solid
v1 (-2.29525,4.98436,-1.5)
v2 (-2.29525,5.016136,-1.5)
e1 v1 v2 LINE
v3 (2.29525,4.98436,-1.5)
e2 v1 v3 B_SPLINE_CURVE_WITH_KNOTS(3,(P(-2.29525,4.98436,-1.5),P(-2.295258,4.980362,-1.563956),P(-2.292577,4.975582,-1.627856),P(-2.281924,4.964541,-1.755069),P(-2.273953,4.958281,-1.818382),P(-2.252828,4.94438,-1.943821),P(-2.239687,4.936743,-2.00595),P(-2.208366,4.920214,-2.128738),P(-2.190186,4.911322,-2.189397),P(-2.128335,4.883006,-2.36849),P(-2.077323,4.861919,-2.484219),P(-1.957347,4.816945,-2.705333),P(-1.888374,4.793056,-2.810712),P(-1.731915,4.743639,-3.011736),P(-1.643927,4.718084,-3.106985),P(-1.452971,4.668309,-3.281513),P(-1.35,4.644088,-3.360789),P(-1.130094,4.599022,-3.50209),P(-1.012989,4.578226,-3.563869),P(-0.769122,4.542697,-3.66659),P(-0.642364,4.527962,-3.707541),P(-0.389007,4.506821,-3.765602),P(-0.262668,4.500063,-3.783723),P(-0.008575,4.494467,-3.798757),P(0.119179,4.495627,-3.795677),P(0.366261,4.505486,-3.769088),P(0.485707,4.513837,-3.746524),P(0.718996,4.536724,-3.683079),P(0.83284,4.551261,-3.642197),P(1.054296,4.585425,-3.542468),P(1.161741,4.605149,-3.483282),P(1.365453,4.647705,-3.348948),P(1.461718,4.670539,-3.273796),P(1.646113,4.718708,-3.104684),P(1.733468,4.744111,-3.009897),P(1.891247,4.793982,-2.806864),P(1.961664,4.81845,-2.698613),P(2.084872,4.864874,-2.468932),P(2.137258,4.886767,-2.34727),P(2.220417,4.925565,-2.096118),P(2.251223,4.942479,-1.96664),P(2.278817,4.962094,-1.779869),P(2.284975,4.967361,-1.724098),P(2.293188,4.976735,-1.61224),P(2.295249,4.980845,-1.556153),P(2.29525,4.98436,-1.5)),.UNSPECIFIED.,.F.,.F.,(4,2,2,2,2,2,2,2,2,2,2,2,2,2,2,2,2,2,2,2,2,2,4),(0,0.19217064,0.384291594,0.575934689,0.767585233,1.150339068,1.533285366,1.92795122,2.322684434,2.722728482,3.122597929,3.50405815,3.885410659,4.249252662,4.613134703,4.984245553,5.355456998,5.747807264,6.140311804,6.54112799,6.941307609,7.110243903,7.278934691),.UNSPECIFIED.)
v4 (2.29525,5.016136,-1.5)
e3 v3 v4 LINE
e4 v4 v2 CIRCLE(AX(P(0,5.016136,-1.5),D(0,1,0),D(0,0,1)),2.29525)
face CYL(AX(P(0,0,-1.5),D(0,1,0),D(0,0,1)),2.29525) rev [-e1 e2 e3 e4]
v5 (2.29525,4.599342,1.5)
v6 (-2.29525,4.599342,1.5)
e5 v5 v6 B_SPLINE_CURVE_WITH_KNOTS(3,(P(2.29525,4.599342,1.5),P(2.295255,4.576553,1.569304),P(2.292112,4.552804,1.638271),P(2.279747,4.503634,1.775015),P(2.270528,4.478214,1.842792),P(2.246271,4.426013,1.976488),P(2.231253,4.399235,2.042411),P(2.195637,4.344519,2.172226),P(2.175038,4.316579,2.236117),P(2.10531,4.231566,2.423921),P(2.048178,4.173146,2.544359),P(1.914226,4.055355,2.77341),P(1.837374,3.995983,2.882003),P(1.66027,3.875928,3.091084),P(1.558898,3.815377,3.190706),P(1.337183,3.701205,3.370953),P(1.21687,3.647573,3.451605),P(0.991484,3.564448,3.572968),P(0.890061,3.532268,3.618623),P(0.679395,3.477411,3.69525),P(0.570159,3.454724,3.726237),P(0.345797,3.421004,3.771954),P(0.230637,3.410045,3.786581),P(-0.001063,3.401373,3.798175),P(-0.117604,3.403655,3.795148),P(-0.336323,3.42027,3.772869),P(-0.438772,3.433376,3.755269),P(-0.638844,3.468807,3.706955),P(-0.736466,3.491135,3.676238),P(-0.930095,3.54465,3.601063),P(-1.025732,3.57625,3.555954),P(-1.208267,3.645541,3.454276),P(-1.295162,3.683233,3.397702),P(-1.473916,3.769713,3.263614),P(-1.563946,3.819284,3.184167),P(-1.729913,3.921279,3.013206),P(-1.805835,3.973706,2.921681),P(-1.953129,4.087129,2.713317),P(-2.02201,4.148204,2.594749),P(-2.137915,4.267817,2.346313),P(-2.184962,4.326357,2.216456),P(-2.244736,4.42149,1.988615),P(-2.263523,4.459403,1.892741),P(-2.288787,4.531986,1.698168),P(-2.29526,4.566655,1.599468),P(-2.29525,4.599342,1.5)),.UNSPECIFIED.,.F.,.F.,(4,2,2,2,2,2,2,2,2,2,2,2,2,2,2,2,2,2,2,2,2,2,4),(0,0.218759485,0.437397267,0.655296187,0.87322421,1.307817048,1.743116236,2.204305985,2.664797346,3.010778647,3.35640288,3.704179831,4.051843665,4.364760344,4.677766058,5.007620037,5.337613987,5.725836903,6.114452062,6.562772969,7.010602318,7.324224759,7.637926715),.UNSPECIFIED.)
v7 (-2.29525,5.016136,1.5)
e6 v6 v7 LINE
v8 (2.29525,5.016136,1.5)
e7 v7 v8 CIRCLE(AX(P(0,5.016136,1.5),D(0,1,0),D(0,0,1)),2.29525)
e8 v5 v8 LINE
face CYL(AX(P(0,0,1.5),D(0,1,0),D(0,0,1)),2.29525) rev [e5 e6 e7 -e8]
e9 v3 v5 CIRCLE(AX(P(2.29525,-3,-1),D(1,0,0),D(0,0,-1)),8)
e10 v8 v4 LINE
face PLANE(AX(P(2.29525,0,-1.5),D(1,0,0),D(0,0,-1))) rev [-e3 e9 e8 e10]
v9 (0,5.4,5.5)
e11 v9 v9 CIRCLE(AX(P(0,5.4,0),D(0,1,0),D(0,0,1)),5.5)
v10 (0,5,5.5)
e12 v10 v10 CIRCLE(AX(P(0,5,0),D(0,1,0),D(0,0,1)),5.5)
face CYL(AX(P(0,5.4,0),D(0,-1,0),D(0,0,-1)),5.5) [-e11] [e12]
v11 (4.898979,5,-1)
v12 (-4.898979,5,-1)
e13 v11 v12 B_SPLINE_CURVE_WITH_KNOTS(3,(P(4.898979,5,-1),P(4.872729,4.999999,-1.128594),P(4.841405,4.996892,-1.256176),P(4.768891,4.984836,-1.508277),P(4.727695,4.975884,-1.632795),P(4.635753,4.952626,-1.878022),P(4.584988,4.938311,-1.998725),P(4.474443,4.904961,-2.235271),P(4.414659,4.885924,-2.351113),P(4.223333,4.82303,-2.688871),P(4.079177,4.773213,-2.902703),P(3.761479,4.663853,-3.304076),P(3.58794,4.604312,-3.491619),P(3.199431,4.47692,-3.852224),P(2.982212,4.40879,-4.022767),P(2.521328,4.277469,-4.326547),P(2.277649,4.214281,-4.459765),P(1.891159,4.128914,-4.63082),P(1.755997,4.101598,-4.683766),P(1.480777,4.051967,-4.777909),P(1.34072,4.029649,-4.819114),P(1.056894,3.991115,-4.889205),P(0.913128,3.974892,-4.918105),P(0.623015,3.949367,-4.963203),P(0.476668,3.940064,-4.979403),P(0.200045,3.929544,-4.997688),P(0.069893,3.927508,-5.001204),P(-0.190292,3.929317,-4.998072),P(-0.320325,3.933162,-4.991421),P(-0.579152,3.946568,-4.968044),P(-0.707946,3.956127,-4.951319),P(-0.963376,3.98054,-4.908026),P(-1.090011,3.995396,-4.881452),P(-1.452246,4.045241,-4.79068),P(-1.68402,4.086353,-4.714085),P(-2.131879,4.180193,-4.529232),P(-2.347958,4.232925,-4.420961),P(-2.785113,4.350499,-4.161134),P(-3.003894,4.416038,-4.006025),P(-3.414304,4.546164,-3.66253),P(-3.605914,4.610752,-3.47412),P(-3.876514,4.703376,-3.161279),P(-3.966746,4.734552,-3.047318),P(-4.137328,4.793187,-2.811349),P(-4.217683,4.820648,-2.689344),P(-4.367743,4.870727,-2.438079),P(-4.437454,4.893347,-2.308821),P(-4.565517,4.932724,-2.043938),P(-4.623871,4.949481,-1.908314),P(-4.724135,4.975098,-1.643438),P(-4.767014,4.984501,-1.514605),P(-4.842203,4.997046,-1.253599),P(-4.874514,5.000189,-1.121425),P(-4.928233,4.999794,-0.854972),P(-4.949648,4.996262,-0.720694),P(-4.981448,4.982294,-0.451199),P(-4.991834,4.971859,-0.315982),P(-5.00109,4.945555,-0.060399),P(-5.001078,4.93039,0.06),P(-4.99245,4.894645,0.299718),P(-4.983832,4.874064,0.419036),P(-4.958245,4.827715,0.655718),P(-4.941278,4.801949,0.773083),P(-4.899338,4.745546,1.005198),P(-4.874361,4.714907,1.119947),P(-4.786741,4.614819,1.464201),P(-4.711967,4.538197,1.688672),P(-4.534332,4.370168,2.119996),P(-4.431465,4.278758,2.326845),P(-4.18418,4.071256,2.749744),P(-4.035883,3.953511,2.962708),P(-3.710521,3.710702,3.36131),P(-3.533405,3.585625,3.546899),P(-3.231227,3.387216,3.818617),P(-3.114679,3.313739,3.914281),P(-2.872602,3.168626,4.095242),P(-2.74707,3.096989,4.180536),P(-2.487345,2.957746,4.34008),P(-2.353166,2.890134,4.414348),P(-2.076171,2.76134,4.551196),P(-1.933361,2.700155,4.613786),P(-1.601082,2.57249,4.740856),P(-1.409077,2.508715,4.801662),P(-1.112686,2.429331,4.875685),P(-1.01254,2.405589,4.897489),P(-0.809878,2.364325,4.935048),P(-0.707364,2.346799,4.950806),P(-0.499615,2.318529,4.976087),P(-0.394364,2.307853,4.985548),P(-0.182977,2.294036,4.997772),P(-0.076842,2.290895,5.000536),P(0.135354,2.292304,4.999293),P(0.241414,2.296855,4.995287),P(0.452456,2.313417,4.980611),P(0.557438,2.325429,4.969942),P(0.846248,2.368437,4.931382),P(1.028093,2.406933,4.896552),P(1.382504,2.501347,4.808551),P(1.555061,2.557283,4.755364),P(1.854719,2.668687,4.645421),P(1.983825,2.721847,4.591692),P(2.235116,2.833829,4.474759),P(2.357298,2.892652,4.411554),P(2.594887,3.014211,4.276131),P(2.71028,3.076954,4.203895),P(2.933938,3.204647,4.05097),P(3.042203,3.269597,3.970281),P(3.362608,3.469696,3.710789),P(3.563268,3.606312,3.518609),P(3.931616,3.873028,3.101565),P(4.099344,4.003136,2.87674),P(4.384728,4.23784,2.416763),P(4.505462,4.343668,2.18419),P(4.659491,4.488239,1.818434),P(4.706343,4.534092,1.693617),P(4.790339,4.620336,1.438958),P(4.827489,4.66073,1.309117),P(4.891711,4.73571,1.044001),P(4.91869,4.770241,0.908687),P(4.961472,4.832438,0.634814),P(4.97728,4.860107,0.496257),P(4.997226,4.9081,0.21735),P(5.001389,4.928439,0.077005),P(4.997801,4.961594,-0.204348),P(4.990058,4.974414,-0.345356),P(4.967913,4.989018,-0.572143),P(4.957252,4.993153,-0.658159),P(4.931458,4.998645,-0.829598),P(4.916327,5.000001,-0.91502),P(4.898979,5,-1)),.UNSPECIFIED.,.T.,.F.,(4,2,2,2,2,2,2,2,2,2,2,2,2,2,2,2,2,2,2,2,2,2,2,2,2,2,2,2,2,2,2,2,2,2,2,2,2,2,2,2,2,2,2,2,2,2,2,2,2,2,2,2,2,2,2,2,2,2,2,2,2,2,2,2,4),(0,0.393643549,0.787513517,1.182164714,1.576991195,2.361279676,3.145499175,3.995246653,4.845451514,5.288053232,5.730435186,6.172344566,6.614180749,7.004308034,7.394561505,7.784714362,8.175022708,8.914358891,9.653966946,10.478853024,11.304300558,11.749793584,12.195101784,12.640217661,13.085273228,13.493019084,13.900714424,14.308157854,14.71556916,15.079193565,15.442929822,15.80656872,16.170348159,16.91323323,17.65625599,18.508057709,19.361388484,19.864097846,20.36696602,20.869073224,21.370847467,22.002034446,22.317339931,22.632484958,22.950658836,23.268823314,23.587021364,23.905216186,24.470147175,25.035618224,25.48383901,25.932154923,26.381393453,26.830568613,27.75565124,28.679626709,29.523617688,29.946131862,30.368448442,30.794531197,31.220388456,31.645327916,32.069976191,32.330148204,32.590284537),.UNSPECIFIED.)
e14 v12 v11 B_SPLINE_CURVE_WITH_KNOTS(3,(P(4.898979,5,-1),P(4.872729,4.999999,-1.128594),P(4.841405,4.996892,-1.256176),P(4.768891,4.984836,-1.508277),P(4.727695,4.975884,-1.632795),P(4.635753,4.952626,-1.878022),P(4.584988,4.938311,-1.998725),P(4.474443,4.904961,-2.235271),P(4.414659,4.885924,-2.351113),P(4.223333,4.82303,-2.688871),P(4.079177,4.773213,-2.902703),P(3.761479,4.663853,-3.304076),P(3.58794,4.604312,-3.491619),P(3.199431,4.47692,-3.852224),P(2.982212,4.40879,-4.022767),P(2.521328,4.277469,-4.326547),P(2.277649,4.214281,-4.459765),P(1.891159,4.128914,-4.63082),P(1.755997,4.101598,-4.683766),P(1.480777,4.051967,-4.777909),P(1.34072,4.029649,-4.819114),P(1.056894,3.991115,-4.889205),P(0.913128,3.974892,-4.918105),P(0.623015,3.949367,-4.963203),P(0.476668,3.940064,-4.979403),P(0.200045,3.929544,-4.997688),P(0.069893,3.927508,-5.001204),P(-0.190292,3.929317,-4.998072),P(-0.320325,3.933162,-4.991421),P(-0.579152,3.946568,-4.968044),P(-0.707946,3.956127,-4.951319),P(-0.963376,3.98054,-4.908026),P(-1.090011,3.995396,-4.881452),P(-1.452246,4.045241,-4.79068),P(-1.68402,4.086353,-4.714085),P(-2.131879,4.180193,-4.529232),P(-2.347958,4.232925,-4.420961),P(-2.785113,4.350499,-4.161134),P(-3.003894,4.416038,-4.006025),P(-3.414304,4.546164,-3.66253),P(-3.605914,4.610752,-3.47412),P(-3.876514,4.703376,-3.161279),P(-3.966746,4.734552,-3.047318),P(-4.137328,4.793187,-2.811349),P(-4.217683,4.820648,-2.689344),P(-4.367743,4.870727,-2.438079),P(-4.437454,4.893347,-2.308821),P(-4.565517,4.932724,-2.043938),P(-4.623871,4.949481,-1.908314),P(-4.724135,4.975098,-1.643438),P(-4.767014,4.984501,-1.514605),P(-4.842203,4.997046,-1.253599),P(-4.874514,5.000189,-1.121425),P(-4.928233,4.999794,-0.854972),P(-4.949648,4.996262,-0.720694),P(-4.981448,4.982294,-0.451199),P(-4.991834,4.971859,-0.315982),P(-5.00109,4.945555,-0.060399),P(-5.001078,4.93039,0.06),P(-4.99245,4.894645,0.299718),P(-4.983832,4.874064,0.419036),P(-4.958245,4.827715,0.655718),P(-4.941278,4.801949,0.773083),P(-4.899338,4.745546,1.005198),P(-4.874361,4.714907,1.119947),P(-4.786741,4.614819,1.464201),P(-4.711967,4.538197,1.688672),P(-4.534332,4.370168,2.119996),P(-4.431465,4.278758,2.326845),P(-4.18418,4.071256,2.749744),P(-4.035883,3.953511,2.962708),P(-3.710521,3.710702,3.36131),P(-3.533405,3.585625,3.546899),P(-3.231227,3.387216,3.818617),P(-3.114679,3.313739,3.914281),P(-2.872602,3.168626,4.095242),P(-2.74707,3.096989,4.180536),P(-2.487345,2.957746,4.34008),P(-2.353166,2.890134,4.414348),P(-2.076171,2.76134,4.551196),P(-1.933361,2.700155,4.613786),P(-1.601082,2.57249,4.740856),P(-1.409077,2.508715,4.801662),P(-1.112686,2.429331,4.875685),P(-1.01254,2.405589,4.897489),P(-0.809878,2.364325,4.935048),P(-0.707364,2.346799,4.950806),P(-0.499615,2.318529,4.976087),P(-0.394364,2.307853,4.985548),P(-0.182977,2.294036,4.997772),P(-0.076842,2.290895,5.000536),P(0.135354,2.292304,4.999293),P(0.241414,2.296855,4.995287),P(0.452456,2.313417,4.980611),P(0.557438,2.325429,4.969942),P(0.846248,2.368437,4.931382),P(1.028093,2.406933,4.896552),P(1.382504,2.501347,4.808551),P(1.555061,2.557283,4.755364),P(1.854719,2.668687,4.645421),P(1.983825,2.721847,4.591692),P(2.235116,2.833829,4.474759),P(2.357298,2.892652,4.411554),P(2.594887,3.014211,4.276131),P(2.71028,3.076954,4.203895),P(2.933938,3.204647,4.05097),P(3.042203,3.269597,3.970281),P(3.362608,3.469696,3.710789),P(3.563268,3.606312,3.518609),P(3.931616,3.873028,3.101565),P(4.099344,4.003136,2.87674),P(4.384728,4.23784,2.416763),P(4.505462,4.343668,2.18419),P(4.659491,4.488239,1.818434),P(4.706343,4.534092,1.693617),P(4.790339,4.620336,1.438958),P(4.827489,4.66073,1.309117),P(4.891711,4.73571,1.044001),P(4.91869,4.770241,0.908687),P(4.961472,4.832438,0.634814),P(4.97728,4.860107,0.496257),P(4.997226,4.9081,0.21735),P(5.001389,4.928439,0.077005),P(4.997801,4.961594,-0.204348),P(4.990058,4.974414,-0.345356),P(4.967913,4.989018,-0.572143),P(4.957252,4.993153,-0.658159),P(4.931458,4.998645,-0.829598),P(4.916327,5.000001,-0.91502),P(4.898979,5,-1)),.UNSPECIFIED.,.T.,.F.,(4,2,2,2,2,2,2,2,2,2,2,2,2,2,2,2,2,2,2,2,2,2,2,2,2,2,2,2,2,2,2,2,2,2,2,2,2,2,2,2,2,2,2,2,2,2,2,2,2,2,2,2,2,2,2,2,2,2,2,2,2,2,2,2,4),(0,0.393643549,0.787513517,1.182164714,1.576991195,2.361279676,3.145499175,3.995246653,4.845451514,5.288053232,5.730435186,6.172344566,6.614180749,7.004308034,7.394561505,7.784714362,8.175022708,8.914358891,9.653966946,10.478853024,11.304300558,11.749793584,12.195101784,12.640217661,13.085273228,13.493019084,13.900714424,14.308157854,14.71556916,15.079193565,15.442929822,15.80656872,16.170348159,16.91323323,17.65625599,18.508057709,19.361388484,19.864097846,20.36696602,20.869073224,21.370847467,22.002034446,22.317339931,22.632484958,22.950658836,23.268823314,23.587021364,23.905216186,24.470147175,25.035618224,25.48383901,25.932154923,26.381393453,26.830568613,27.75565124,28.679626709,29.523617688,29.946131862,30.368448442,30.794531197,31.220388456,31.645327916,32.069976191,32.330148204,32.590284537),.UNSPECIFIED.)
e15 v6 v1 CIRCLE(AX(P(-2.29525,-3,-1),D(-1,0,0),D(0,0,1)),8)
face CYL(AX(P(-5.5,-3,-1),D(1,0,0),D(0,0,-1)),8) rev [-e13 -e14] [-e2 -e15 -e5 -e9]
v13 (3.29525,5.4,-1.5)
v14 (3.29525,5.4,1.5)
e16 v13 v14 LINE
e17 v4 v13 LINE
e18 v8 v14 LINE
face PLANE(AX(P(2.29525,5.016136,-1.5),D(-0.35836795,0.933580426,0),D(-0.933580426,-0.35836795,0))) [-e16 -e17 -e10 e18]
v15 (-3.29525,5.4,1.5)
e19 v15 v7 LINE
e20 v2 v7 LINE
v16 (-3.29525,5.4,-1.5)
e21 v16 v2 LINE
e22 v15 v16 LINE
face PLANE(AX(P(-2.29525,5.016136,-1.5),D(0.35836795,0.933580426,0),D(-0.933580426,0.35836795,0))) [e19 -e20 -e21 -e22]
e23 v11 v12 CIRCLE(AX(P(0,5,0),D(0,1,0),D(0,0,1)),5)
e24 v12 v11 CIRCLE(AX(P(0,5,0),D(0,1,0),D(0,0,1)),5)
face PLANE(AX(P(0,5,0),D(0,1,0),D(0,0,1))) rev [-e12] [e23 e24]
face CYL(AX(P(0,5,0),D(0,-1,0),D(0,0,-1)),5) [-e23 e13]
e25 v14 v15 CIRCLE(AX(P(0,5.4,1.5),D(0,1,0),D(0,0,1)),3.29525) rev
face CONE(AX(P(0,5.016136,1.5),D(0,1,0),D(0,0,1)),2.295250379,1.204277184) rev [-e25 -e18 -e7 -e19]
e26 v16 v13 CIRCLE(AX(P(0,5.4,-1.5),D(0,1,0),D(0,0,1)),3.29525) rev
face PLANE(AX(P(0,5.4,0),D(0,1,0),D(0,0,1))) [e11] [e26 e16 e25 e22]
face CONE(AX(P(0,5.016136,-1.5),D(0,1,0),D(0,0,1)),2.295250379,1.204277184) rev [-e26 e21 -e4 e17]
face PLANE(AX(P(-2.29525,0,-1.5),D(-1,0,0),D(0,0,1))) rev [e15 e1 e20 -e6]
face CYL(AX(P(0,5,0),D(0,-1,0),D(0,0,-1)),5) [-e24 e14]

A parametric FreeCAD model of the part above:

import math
import FreeCAD as App
import Part
import Sketcher
from FreeCAD import Vector


def edges_at(feature, points):
    """Names of the edges that pass closest to the given points."""
    edges = feature.Shape.Edges
    near = lambda p: min(range(len(edges)), key=lambda i: edges[i].distToShape(Part.Vertex(*p))[0])
    return sorted({f"Edge{near(p) + 1}" for p in points})

doc = App.newDocument("Part")
params = doc.addObject("Spreadsheet::Sheet", "Params")
for row, (alias, value) in enumerate([
    ("sketch1_diameter", "10 mm"),
    ("pad1_length", "5 mm"),
    ("sketch2_diameter", "11 mm"),
    ("pad2_length", "0.4 mm"),
    ("sketch3_height", "3 mm"),
    ("sketch4_diameter", "16 mm"),
    ("chamfer_size", "1 mm"),
    ("chamfer_size2", "0.383864 mm"),
], start=1):
    params.set(f"A{row}", alias)
    params.set(f"B{row}", "=" + value)
    params.setAlias(f"B{row}", alias)

body = doc.addObject("PartDesign::Body", "Body")

sketch1 = doc.addObject("Sketcher::SketchObject", "Sketch")
body.addObject(sketch1)
sketch1.AttachmentSupport = (doc.XZ_Plane, [""])
sketch1.MapMode = "FlatFace"
sketch1.addGeometry(Part.Circle(Vector(0, 0, 0), Vector(0, 0, 1), 5), False)
sketch1.addConstraint([
    Sketcher.Constraint("Coincident", 0, 3, -1, 1),
    Sketcher.Constraint("Diameter", 0, 10.0),
])
sketch1.setExpression("Constraints[1]", "Params.sketch1_diameter")
pad1 = doc.addObject("PartDesign::Pad", "Pad")
body.addObject(pad1)
pad1.Profile = sketch1
pad1.setExpression("Length", "Params.pad1_length")
pad1.Reversed = True

sketch2 = doc.addObject("Sketcher::SketchObject", "Sketch001")
body.addObject(sketch2)
sketch2.AttachmentSupport = (doc.XZ_Plane, [""])
sketch2.MapMode = "FlatFace"
sketch2.AttachmentOffset = App.Placement(Vector(0, 0, -5), App.Rotation())
sketch2.addGeometry(Part.Circle(Vector(0, 0, 0), Vector(0, 0, 1), 5.5), False)
sketch2.addConstraint([
    Sketcher.Constraint("Coincident", 0, 3, -1, 1),
    Sketcher.Constraint("Diameter", 0, 11.0),
])
sketch2.setExpression("Constraints[1]", "Params.sketch2_diameter")
pad2 = doc.addObject("PartDesign::Pad", "Pad001")
body.addObject(pad2)
pad2.Profile = sketch2
pad2.setExpression("Length", "Params.pad2_length")
pad2.Reversed = True

sketch3 = doc.addObject("Sketcher::SketchObject", "Sketch002")
body.addObject(sketch3)
sketch3.AttachmentSupport = (doc.XZ_Plane, [""])
sketch3.MapMode = "FlatFace"
sketch3.AttachmentOffset = App.Placement(Vector(0, 0, -5.4), App.Rotation())
sketch3.addGeometry([
    Part.LineSegment(Vector(2.29525, 1.5, 0), Vector(2.29525, -1.5, 0)),
    Part.ArcOfCircle(Part.Circle(Vector(0, -1.5, 0), Vector(0, 0, 1), 2.29525), math.radians(180), math.radians(360)),
    Part.LineSegment(Vector(-2.29525, -1.5, 0), Vector(-2.29525, 1.5, 0)),
    Part.ArcOfCircle(Part.Circle(Vector(0, 1.5, 0), Vector(0, 0, 1), 2.29525), math.radians(0), math.radians(180)),
], False)
sketch3.addConstraint([
    Sketcher.Constraint("Tangent", 0, 2, 1, 2),
    Sketcher.Constraint("Tangent", 1, 1, 2, 1),
    Sketcher.Constraint("Tangent", 2, 2, 3, 2),
    Sketcher.Constraint("Tangent", 3, 1, 0, 1),
    Sketcher.Constraint("Vertical", 0),
    Sketcher.Constraint("Vertical", 2),
    Sketcher.Constraint("Symmetric", 1, 3, 3, 3, -1, 1),
    Sketcher.Constraint("DistanceY", 0, 2, 0, 1, 3.0),
    Sketcher.Constraint("Radius", 1, 2.29525),
])
sketch3.setExpression("Constraints[7]", "Params.sketch3_height")
pocket1 = doc.addObject("PartDesign::Pocket", "Pocket")
body.addObject(pocket1)
pocket1.Profile = sketch3
pocket1.Type = "ThroughAll"
pocket1.Reversed = True

sketch4 = doc.addObject("Sketcher::SketchObject", "Sketch003")
body.addObject(sketch4)
sketch4.AttachmentSupport = (doc.YZ_Plane, [""])
sketch4.MapMode = "FlatFace"
sketch4.addGeometry(Part.Circle(Vector(-3, -1, 0), Vector(0, 0, 1), 8), False)
sketch4.addConstraint([
    Sketcher.Constraint("Diameter", 0, 16.0),
    Sketcher.Constraint("DistanceX", 0, 3, -1, 1, 3.0),
    Sketcher.Constraint("DistanceY", 0, 3, -1, 1, 1.0),
])
sketch4.setExpression("Constraints[0]", "Params.sketch4_diameter")
pocket2 = doc.addObject("PartDesign::Pocket", "Pocket001")
body.addObject(pocket2)
pocket2.Profile = sketch4
pocket2.Type = "ThroughAll"
pocket2.Midplane = True
doc.recompute()

chamfer = doc.addObject("PartDesign::Chamfer", "Chamfer")
body.addObject(chamfer)
chamfer.Base = (pocket2, edges_at(pocket2, [
    (0, 5.4, -3.795),
    (-2.295, 5.4, 0),
    (0, 5.4, 3.795),
    (2.295, 5.4, 0),
]))
chamfer.ChamferType = "Two distances"
chamfer.setExpression("Size", "Params.chamfer_size")
chamfer.setExpression("Size2", "Params.chamfer_size2")

doc.recompute()
